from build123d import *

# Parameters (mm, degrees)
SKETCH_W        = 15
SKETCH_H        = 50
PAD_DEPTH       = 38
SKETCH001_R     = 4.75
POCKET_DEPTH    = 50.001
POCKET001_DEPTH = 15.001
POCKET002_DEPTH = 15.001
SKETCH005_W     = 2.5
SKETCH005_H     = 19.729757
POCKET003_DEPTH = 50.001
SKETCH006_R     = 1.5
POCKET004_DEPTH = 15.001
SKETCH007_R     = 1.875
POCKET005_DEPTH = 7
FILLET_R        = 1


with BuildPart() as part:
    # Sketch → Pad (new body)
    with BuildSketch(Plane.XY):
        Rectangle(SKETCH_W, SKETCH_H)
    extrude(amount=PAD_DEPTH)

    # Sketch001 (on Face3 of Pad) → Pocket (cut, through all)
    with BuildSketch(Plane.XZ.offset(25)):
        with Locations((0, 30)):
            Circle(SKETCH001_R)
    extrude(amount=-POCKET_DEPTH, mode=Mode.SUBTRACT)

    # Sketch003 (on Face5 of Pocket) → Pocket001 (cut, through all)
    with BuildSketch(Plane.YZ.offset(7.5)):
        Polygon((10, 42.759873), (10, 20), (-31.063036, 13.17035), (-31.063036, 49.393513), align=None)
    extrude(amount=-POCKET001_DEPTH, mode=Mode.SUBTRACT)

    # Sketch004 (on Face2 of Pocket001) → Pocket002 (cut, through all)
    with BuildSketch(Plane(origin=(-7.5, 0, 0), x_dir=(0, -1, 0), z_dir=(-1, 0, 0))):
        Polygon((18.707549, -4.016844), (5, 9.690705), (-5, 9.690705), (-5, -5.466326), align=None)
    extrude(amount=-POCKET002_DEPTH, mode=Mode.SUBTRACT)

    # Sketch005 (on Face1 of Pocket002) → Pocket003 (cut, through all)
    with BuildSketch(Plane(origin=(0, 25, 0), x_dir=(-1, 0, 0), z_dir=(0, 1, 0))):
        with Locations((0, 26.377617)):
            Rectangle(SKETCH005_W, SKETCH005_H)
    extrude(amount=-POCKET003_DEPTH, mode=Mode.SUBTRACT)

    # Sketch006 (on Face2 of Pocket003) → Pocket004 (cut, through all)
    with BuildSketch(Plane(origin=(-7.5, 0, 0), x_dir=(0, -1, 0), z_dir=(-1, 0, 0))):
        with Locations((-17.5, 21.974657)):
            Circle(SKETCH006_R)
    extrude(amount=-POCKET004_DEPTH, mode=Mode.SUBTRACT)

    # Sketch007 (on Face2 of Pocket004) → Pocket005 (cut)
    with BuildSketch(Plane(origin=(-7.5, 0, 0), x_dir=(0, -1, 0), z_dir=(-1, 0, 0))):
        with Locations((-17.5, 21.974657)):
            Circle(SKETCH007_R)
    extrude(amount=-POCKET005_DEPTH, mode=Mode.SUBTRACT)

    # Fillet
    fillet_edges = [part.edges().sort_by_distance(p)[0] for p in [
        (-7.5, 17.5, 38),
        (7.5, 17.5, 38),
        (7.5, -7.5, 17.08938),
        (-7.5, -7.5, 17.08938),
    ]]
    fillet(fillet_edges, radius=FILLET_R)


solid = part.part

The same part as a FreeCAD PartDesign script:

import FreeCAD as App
import Part
import Sketcher

V = App.Vector
Q = App.Units.Quantity


def edges_at(feature, points):
    """Names of the edges that pass closest to the given points."""
    edges = feature.Shape.Edges
    near = lambda p: min(range(len(edges)), key=lambda i: edges[i].distToShape(Part.Vertex(*p))[0])
    return sorted({f"Edge{near(p) + 1}" for p in points})


def add_polygon(sketch, points):
    """Adds a closed chain of lines whose ends are joined by coincident constraints."""
    first, n = sketch.GeometryCount, len(points)
    for a, b in zip(points, points[1:] + points[:1]):
        sketch.addGeometry(Part.LineSegment(App.Vector(*a, 0), App.Vector(*b, 0)), False)
    for i in range(n):
        sketch.addConstraint(Sketcher.Constraint("Coincident", first + i, 2, first + (i + 1) % n, 1))

doc = App.newDocument("Part")
body = doc.addObject("PartDesign::Body", "Body")

# Sketch on XY plane
sketch1 = body.newObject("Sketcher::SketchObject", "Sketch")
sketch1.AttachmentSupport = (doc.getObject("XY_Plane"), [""])
sketch1.MapMode = "FlatFace"
add_polygon(sketch1, [(-8, 25), (-8, -25), (8, -25), (8, 25)])  # lines 0-3
sketch1.addConstraint([
    Sketcher.Constraint("Vertical", 0),
    Sketcher.Constraint("Horizontal", 1),
    Sketcher.Constraint("Vertical", 2),
    Sketcher.Constraint("Horizontal", 3),
    Sketcher.Constraint("Symmetric", 0, 2, 2, 2, -1, 1),
    Sketcher.Constraint("DistanceX", 1, 1, 1, 2, Q("15 mm")),
    Sketcher.Constraint("DistanceY", 0, 2, 0, 1, Q("50 mm")),
])
pad1 = body.newObject("PartDesign::Pad", "Pad")
pad1.Profile = sketch1
pad1.Length = 38

# Sketch on XZ plane
sketch2 = body.newObject("Sketcher::SketchObject", "Sketch001")
sketch2.AttachmentSupport = (doc.getObject("XZ_Plane"), [""])
sketch2.MapMode = "FlatFace"
sketch2.AttachmentOffset = App.Placement(V(0, 0, 25), App.Rotation())
sketch2.addGeometry(Part.Circle(V(0, 30, 0), V(0, 0, 1), 4.8), False)
sketch2.addConstraint([
    Sketcher.Constraint("PointOnObject", 0, 3, -2),
    Sketcher.Constraint("Diameter", 0, Q("9.5 mm")),
    Sketcher.Constraint("DistanceY", -1, 1, 0, 3, Q("30 mm")),
])
pocket1 = body.newObject("PartDesign::Pocket", "Pocket")
pocket1.Profile = sketch2
pocket1.Type = "ThroughAll"

# Sketch on YZ plane
sketch3 = body.newObject("Sketcher::SketchObject", "Sketch002")
sketch3.AttachmentSupport = (doc.getObject("YZ_Plane"), [""])
sketch3.MapMode = "FlatFace"
sketch3.AttachmentOffset = App.Placement(V(0, 0, 7.5), App.Rotation())
add_polygon(sketch3, [(10, 20), (10, 43), (-31, 49), (-31, 13)])  # lines 0-3
sketch3.addConstraint([
    Sketcher.Constraint("Vertical", 0),
    Sketcher.Constraint("Vertical", 2),
    Sketcher.Constraint("DistanceX", -1, 1, 0, 2, Q("10 mm")),
    Sketcher.Constraint("DistanceY", -1, 1, 3, 2, Q("20 mm")),
    Sketcher.Constraint("Distance", 1, Q("41.59541 mm")),
    Sketcher.Constraint("Distance", 3, Q("41.627119 mm")),
    Sketcher.Constraint("DistanceY", 0, 1, 0, 2, Q("22.759873 mm")),
    Sketcher.Constraint("DistanceY", 2, 2, 2, 1, Q("36.223163 mm")),
])
pocket2 = body.newObject("PartDesign::Pocket", "Pocket001")
pocket2.Profile = sketch3
pocket2.Type = "ThroughAll"

# Sketch on YZ plane
sketch4 = body.newObject("Sketcher::SketchObject", "Sketch003")
sketch4.AttachmentSupport = (doc.getObject("YZ_Plane"), [""])
sketch4.MapMode = "FlatFace"
sketch4.AttachmentOffset = App.Placement(V(0, 0, -7.5), App.Rotation())
add_polygon(sketch4, [(-19, -4), (-5, 10), (5, 10), (5, -5)])  # lines 0-3
sketch4.addConstraint([
    Sketcher.Constraint("Horizontal", 1),
    Sketcher.Constraint("Vertical", 2),
    Sketcher.Constraint("DistanceX", 1, 1, 1, 2, Q("10 mm")),
    Sketcher.Constraint("Angle", 0, Q("45 deg")),
    Sketcher.Constraint("DistanceX", 0, 2, -1, 1, Q("5 mm")),
    Sketcher.Constraint("Distance", 0, Q("19.385402 mm")),
    Sketcher.Constraint("DistanceY", 2, 2, 2, 1, Q("15.157031 mm")),
    Sketcher.Constraint("DistanceY", -1, 1, 0, 2, Q("9.690705 mm")),
])
pocket3 = body.newObject("PartDesign::Pocket", "Pocket002")
pocket3.Profile = sketch4
pocket3.Type = "ThroughAll"
pocket3.Reversed = True

# Sketch on XZ plane
sketch5 = body.newObject("Sketcher::SketchObject", "Sketch004")
sketch5.AttachmentSupport = (doc.getObject("XZ_Plane"), [""])
sketch5.MapMode = "FlatFace"
sketch5.AttachmentOffset = App.Placement(V(0, 0, -25), App.Rotation())
add_polygon(sketch5, [(1.2, 36.2), (1.2, 16.5), (-1.2, 16.5), (-1.2, 36.2)])  # lines 0-3
sketch5.addConstraint([
    Sketcher.Constraint("Vertical", 0),
    Sketcher.Constraint("Horizontal", 1),
    Sketcher.Constraint("Vertical", 2),
    Sketcher.Constraint("Horizontal", 3),
    Sketcher.Constraint("DistanceX", 1, 2, 1, 1, Q("2.5 mm")),
    Sketcher.Constraint("DistanceX", -1, 1, 0, 2, Q("1.25 mm")),
    Sketcher.Constraint("DistanceY", 0, 2, 0, 1, Q("19.729757 mm")),
    Sketcher.Constraint("DistanceY", -1, 1, 0, 2, Q("16.512739 mm")),
])
pocket4 = body.newObject("PartDesign::Pocket", "Pocket003")
pocket4.Profile = sketch5
pocket4.Type = "ThroughAll"
pocket4.Reversed = True

# Sketch on YZ plane
sketch6 = body.newObject("Sketcher::SketchObject", "Sketch005")
sketch6.AttachmentSupport = (doc.getObject("YZ_Plane"), [""])
sketch6.MapMode = "FlatFace"
sketch6.AttachmentOffset = App.Placement(V(0, 0, -7.5), App.Rotation())
sketch6.addGeometry(Part.Circle(V(17.5, 22, 0), V(0, 0, 1), 1.5), False)
sketch6.addConstraint([
    Sketcher.Constraint("Diameter", 0, Q("3 mm")),
    Sketcher.Constraint("DistanceX", -1, 1, 0, 3, Q("17.5 mm")),
    Sketcher.Constraint("DistanceY", -1, 1, 0, 3, Q("21.974657 mm")),
])
pocket5 = body.newObject("PartDesign::Pocket", "Pocket004")
pocket5.Profile = sketch6
pocket5.Type = "ThroughAll"
pocket5.Reversed = True

# Sketch on YZ plane
sketch7 = body.newObject("Sketcher::SketchObject", "Sketch006")
sketch7.AttachmentSupport = (doc.getObject("YZ_Plane"), [""])
sketch7.MapMode = "FlatFace"
sketch7.AttachmentOffset = App.Placement(V(0, 0, -7.5), App.Rotation())
sketch7.addGeometry(Part.Circle(V(17.5, 22, 0), V(0, 0, 1), 1.9), False)
sketch7.addConstraint([
    Sketcher.Constraint("Diameter", 0, Q("3.75 mm")),
    Sketcher.Constraint("DistanceX", -1, 1, 0, 3, Q("17.5 mm")),
    Sketcher.Constraint("DistanceY", -1, 1, 0, 3, Q("21.974657 mm")),
])
pocket6 = body.newObject("PartDesign::Pocket", "Pocket005")
pocket6.Profile = sketch7
pocket6.Length = 7
pocket6.Reversed = True
doc.recompute()

fillet = body.newObject("PartDesign::Fillet", "Fillet")
fillet.Base = (pocket6, edges_at(pocket6, [
    (-7.5, 17.5, 38),
    (7.5, 17.5, 38),
    (7.5, -7.5, 17.089),
    (-7.5, -7.5, 17.089),
]))
fillet.Radius = 1

doc.recompute()
